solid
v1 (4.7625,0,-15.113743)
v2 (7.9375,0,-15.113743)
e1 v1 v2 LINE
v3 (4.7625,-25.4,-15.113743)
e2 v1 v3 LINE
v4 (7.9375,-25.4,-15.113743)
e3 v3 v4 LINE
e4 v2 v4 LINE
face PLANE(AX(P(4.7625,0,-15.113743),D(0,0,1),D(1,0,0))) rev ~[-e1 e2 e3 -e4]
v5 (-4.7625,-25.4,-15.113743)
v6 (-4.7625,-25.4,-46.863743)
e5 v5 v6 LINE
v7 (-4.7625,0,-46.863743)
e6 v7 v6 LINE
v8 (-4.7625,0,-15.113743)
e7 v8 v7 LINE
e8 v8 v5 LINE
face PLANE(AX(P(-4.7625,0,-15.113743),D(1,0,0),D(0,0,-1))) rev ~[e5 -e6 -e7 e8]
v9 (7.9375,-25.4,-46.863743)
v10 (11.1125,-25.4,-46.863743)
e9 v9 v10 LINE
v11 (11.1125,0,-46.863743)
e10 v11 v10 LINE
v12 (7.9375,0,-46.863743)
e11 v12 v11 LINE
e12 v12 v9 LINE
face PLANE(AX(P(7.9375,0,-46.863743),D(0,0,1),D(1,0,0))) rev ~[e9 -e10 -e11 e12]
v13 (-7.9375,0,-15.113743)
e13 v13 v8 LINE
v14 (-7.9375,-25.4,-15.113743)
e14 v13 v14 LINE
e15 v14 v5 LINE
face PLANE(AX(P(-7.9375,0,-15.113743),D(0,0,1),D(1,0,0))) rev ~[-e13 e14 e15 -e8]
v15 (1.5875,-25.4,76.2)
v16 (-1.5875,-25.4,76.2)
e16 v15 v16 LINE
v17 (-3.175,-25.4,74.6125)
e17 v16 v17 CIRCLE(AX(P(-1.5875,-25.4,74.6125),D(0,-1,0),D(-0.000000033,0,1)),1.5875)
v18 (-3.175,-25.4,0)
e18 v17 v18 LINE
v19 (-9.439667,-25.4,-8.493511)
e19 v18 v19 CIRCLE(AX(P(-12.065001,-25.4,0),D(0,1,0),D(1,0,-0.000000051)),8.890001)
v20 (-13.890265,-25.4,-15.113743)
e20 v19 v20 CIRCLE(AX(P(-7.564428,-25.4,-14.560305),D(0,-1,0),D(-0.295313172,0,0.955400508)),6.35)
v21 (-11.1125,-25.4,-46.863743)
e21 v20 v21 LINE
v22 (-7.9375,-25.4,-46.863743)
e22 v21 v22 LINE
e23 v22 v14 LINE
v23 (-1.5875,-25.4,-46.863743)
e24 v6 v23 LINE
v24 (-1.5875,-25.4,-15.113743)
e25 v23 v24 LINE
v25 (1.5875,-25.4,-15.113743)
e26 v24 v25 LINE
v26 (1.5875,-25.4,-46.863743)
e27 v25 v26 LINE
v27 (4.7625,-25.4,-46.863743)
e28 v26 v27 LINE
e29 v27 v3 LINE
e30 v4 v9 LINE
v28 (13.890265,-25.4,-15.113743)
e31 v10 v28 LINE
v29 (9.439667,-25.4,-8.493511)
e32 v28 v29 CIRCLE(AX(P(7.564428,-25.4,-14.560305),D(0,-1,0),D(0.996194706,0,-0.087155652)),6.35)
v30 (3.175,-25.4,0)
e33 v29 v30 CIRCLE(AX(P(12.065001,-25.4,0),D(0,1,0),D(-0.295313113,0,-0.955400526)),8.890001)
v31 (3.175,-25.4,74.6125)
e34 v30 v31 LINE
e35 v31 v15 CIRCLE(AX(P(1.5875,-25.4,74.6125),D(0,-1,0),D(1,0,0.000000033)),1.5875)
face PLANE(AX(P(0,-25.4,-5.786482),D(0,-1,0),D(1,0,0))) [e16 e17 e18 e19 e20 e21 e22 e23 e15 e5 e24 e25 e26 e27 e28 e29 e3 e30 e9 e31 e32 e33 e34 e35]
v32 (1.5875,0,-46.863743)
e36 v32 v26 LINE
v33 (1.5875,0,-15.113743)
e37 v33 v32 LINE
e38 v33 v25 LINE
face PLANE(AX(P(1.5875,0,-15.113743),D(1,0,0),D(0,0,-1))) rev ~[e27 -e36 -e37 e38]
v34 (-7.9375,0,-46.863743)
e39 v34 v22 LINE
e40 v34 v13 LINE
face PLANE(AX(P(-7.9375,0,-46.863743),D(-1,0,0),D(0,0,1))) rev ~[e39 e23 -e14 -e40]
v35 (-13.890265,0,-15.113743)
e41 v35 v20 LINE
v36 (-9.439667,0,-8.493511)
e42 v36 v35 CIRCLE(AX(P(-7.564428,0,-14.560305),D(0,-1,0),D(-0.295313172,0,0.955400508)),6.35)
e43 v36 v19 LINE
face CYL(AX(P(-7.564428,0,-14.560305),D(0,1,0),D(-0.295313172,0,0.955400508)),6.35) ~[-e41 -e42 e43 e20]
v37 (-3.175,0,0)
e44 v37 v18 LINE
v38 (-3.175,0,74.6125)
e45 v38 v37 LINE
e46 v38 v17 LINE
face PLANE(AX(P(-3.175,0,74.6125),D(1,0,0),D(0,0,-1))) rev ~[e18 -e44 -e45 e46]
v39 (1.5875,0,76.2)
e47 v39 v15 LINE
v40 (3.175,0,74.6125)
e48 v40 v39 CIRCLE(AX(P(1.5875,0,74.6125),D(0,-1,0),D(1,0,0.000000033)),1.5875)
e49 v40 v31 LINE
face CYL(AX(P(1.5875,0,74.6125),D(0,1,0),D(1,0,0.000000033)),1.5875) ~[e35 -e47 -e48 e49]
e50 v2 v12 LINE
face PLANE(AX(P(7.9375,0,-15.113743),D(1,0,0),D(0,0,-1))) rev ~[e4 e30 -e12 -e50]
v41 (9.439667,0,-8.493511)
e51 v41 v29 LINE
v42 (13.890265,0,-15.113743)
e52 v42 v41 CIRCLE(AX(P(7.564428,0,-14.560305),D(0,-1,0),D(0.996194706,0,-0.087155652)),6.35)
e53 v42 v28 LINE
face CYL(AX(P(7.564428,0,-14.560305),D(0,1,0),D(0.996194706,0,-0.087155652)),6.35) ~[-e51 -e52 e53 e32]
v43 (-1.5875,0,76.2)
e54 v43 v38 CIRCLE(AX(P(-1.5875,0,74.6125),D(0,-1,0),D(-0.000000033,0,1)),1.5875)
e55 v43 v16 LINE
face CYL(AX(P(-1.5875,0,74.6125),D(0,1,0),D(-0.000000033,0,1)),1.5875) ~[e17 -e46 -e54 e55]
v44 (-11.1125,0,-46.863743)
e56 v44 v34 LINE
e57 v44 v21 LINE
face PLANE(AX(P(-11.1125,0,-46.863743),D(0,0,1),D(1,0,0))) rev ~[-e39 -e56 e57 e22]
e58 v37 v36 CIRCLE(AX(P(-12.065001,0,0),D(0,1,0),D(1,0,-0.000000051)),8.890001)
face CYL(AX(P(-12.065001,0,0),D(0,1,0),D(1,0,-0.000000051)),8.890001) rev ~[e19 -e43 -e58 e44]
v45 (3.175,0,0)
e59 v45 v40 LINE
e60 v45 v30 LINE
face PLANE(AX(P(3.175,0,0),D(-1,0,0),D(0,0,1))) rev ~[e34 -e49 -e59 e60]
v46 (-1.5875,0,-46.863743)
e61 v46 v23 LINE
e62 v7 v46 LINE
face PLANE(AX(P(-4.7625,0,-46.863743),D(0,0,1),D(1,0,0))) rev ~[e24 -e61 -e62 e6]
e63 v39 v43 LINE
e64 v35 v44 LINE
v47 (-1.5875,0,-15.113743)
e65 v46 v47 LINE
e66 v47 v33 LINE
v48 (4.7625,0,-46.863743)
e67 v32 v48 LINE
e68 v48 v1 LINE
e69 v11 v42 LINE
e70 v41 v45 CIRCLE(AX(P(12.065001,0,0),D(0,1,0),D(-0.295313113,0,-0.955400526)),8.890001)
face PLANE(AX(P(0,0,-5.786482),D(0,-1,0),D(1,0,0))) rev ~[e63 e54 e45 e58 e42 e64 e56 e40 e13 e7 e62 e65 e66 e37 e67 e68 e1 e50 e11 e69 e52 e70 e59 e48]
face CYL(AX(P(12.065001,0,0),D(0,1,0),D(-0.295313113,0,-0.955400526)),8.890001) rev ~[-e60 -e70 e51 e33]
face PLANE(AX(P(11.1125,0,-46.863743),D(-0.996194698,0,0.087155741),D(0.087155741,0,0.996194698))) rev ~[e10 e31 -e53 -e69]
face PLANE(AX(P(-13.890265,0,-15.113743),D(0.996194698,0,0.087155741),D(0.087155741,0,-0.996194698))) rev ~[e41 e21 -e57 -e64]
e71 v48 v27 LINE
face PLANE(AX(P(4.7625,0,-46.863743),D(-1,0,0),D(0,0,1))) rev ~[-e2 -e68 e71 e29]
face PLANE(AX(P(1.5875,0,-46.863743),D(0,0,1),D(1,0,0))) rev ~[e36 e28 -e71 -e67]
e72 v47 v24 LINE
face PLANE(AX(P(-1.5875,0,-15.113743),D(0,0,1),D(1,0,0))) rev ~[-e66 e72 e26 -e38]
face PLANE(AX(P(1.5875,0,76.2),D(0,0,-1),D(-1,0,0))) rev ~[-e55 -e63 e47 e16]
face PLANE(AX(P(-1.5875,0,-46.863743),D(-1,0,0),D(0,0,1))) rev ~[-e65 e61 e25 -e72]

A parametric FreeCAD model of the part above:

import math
import FreeCAD as App
import Part
import Sketcher
from FreeCAD import Vector
Q = App.Units.Quantity

doc = App.newDocument("Part")
params = doc.addObject("Spreadsheet::Sheet", "Params")
for row, (alias, value) in enumerate([
    ("sketch1_radius", "0.35 in"),
    ("sketch1_radius2", "0.25 in"),
    ("sketch1_radius3", "0.0625 in"),
    ("sketch1_height", "1.25 in"),
    ("pad1_length", "1 in"),
], start=1):
    params.set(f"A{row}", alias)
    params.set(f"B{row}", "=" + value)
    params.setAlias(f"B{row}", alias)

body = doc.addObject("PartDesign::Body", "Body")

# Sketch on XZ plane
sketch1 = doc.addObject("Sketcher::SketchObject", "Sketch")
body.addObject(sketch1)
sketch1.AttachmentSupport = (doc.XZ_Plane, [""])
sketch1.MapMode = "FlatFace"
sketch1.addGeometry(Part.ArcOfCircle(Part.Circle(Vector(-1.5875, 74.6125, 0), Vector(0, 0, 1), 1.5875), math.radians(90.000002), math.radians(179.999998)), False)
sketch1.addGeometry(Part.LineSegment(Vector(-3.175, 74.6125, 0), Vector(-3.175, 0, 0)), False)
sketch1.addGeometry(Part.ArcOfCircle(Part.Circle(Vector(-12.065001, 0, 0), Vector(0, 0, 1), 8.890001), math.radians(-72.823686), math.radians(-0.000003)), False)
sketch1.addGeometry(Part.ArcOfCircle(Part.Circle(Vector(-7.564428, -14.560305, 0), Vector(0, 0, 1), 6.35), math.radians(107.176317), math.radians(184.999995)), False)
sketch1.addGeometry(Part.LineSegment(Vector(-13.890265, -15.113743, 0), Vector(-11.1125, -46.863743, 0)), False)
sketch1.addGeometry(Part.LineSegment(Vector(-11.1125, -46.863743, 0), Vector(-7.9375, -46.863743, 0)), False)
sketch1.addGeometry(Part.LineSegment(Vector(-7.9375, -46.863743, 0), Vector(-7.9375, -15.113743, 0)), False)
sketch1.addGeometry(Part.LineSegment(Vector(-7.9375, -15.113743, 0), Vector(-4.7625, -15.113743, 0)), False)
sketch1.addGeometry(Part.LineSegment(Vector(-4.7625, -15.113743, 0), Vector(-4.7625, -46.863743, 0)), False)
sketch1.addGeometry(Part.LineSegment(Vector(-4.7625, -46.863743, 0), Vector(-1.5875, -46.863743, 0)), False)
sketch1.addGeometry(Part.LineSegment(Vector(-1.5875, -46.863743, 0), Vector(-1.5875, -15.113743, 0)), False)
sketch1.addGeometry(Part.LineSegment(Vector(-1.5875, -15.113743, 0), Vector(1.5875, -15.113743, 0)), False)
sketch1.addGeometry(Part.LineSegment(Vector(1.5875, -15.113743, 0), Vector(1.5875, -46.863743, 0)), False)
sketch1.addGeometry(Part.LineSegment(Vector(1.5875, -46.863743, 0), Vector(4.7625, -46.863743, 0)), False)
sketch1.addGeometry(Part.LineSegment(Vector(4.7625, -46.863743, 0), Vector(4.7625, -15.113743, 0)), False)
sketch1.addGeometry(Part.LineSegment(Vector(4.7625, -15.113743, 0), Vector(7.9375, -15.113743, 0)), False)
sketch1.addGeometry(Part.LineSegment(Vector(7.9375, -15.113743, 0), Vector(7.9375, -46.863743, 0)), False)
sketch1.addGeometry(Part.LineSegment(Vector(7.9375, -46.863743, 0), Vector(11.1125, -46.863743, 0)), False)
sketch1.addGeometry(Part.LineSegment(Vector(11.1125, -46.863743, 0), Vector(13.890265, -15.113743, 0)), False)
sketch1.addGeometry(Part.ArcOfCircle(Part.Circle(Vector(7.564428, -14.560305, 0), Vector(0, 0, 1), 6.35), math.radians(-4.999995), math.radians(72.823683)), False)
sketch1.addGeometry(Part.ArcOfCircle(Part.Circle(Vector(12.065001, 0, 0), Vector(0, 0, 1), 8.890001), math.radians(-179.999997), math.radians(-107.176314)), False)
sketch1.addGeometry(Part.LineSegment(Vector(3.175, 0, 0), Vector(3.175, 74.6125, 0)), False)
sketch1.addGeometry(Part.ArcOfCircle(Part.Circle(Vector(1.5875, 74.6125, 0), Vector(0, 0, 1), 1.5875), math.radians(0.000002), math.radians(89.999998)), False)
sketch1.addGeometry(Part.LineSegment(Vector(1.5875, 76.2, 0), Vector(-1.5875, 76.2, 0)), False)
sketch1.addConstraint(Sketcher.Constraint("Tangent", 0, 2, 1, 1))
sketch1.addConstraint(Sketcher.Constraint("Tangent", 1, 2, 2, 2))
sketch1.addConstraint(Sketcher.Constraint("Tangent", 2, 1, 3, 1))
sketch1.addConstraint(Sketcher.Constraint("Tangent", 3, 2, 4, 1))
sketch1.addConstraint(Sketcher.Constraint("Coincident", 4, 2, 5, 1))
sketch1.addConstraint(Sketcher.Constraint("Coincident", 5, 2, 6, 1))
sketch1.addConstraint(Sketcher.Constraint("Coincident", 6, 2, 7, 1))
sketch1.addConstraint(Sketcher.Constraint("Coincident", 7, 2, 8, 1))
sketch1.addConstraint(Sketcher.Constraint("Coincident", 8, 2, 9, 1))
sketch1.addConstraint(Sketcher.Constraint("Coincident", 9, 2, 10, 1))
sketch1.addConstraint(Sketcher.Constraint("Coincident", 10, 2, 11, 1))
sketch1.addConstraint(Sketcher.Constraint("Coincident", 11, 2, 12, 1))
sketch1.addConstraint(Sketcher.Constraint("Coincident", 12, 2, 13, 1))
sketch1.addConstraint(Sketcher.Constraint("Coincident", 13, 2, 14, 1))
sketch1.addConstraint(Sketcher.Constraint("Coincident", 14, 2, 15, 1))
sketch1.addConstraint(Sketcher.Constraint("Coincident", 15, 2, 16, 1))
sketch1.addConstraint(Sketcher.Constraint("Coincident", 16, 2, 17, 1))
sketch1.addConstraint(Sketcher.Constraint("Coincident", 17, 2, 18, 1))
sketch1.addConstraint(Sketcher.Constraint("Tangent", 18, 2, 19, 1))
sketch1.addConstraint(Sketcher.Constraint("Tangent", 19, 2, 20, 2))
sketch1.addConstraint(Sketcher.Constraint("Tangent", 20, 1, 21, 1))
sketch1.addConstraint(Sketcher.Constraint("Tangent", 21, 2, 22, 1))
sketch1.addConstraint(Sketcher.Constraint("Tangent", 22, 2, 23, 1))
sketch1.addConstraint(Sketcher.Constraint("Tangent", 23, 2, 0, 1))
sketch1.addConstraint(Sketcher.Constraint("Vertical", 1))
sketch1.addConstraint(Sketcher.Constraint("Horizontal", 5))
sketch1.addConstraint(Sketcher.Constraint("Vertical", 6))
sketch1.addConstraint(Sketcher.Constraint("Horizontal", 7))
sketch1.addConstraint(Sketcher.Constraint("Vertical", 8))
sketch1.addConstraint(Sketcher.Constraint("Horizontal", 9))
sketch1.addConstraint(Sketcher.Constraint("Vertical", 10))
sketch1.addConstraint(Sketcher.Constraint("Horizontal", 11))
sketch1.addConstraint(Sketcher.Constraint("Vertical", 12))
sketch1.addConstraint(Sketcher.Constraint("Horizontal", 13))
sketch1.addConstraint(Sketcher.Constraint("Vertical", 14))
sketch1.addConstraint(Sketcher.Constraint("Horizontal", 15))
sketch1.addConstraint(Sketcher.Constraint("Vertical", 16))
sketch1.addConstraint(Sketcher.Constraint("Horizontal", 17))
sketch1.addConstraint(Sketcher.Constraint("Vertical", 21))
sketch1.addConstraint(Sketcher.Constraint("Horizontal", 23))
sketch1.addConstraint(Sketcher.Constraint("Equal", 3, 19))
sketch1.addConstraint(Sketcher.Constraint("Equal", 2, 20))
sketch1.addConstraint(Sketcher.Constraint("Equal", 0, 22))
sketch1.addConstraint(Sketcher.Constraint("Symmetric", 2, 3, 20, 3, -1, 1))
sketch1.addConstraint(Sketcher.Constraint("Symmetric", 3, 3, 19, 3, -2))
sketch1.addConstraint(Sketcher.Constraint("Symmetric", 9, 2, 12, 2, -2))
sketch1.addConstraint(Sketcher.Constraint("Symmetric", 7, 2, 14, 2, -2))
sketch1.addConstraint(Sketcher.Constraint("Symmetric", 5, 2, 16, 2, -2))
sketch1.addConstraint(Sketcher.Constraint("Horizontal", 3, 2, 6, 2))
sketch1.addConstraint(Sketcher.Constraint("Horizontal", 5, 2, 8, 2))
sketch1.addConstraint(Sketcher.Constraint("Horizontal", 7, 2, 10, 2))
sketch1.addConstraint(Sketcher.Constraint("Horizontal", 15, 2, 18, 2))
sketch1.addConstraint(Sketcher.Constraint("Vertical", 0, 3, 9, 2))
sketch1.addConstraint(Sketcher.Constraint("Equal", 5, 7))
sketch1.addConstraint(Sketcher.Constraint("Equal", 7, 9))
sketch1.addConstraint(Sketcher.Constraint("Equal", 9, 11))
sketch1.addConstraint(Sketcher.Constraint("Radius", 2, Q("0.35 in")))
sketch1.addConstraint(Sketcher.Constraint("Radius", 3, Q("0.25 in")))
sketch1.addConstraint(Sketcher.Constraint("DistanceY", -1, 1, 22, 2, Q("3 in")))
sketch1.addConstraint(Sketcher.Constraint("Angle", 4, Q("-85 deg")))
sketch1.addConstraint(Sketcher.Constraint("Radius", 0, Q("0.0625 in")))
sketch1.addConstraint(Sketcher.Constraint("DistanceY", 6, 1, 6, 2, Q("1.25 in")))
sketch1.addConstraint(Sketcher.Constraint("DistanceX", 0, 2, 20, 3, Q("0.6 in")))
sketch1.setExpression("Constraints[56]", "Params.sketch1_radius")
sketch1.setExpression("Constraints[57]", "Params.sketch1_radius2")
sketch1.setExpression("Constraints[60]", "Params.sketch1_radius3")
sketch1.setExpression("Constraints[61]", "Params.sketch1_height")
pad1 = doc.addObject("PartDesign::Pad", "Pad")
body.addObject(pad1)
pad1.Profile = sketch1
pad1.setExpression("Length", "Params.pad1_length")

doc.recompute()
